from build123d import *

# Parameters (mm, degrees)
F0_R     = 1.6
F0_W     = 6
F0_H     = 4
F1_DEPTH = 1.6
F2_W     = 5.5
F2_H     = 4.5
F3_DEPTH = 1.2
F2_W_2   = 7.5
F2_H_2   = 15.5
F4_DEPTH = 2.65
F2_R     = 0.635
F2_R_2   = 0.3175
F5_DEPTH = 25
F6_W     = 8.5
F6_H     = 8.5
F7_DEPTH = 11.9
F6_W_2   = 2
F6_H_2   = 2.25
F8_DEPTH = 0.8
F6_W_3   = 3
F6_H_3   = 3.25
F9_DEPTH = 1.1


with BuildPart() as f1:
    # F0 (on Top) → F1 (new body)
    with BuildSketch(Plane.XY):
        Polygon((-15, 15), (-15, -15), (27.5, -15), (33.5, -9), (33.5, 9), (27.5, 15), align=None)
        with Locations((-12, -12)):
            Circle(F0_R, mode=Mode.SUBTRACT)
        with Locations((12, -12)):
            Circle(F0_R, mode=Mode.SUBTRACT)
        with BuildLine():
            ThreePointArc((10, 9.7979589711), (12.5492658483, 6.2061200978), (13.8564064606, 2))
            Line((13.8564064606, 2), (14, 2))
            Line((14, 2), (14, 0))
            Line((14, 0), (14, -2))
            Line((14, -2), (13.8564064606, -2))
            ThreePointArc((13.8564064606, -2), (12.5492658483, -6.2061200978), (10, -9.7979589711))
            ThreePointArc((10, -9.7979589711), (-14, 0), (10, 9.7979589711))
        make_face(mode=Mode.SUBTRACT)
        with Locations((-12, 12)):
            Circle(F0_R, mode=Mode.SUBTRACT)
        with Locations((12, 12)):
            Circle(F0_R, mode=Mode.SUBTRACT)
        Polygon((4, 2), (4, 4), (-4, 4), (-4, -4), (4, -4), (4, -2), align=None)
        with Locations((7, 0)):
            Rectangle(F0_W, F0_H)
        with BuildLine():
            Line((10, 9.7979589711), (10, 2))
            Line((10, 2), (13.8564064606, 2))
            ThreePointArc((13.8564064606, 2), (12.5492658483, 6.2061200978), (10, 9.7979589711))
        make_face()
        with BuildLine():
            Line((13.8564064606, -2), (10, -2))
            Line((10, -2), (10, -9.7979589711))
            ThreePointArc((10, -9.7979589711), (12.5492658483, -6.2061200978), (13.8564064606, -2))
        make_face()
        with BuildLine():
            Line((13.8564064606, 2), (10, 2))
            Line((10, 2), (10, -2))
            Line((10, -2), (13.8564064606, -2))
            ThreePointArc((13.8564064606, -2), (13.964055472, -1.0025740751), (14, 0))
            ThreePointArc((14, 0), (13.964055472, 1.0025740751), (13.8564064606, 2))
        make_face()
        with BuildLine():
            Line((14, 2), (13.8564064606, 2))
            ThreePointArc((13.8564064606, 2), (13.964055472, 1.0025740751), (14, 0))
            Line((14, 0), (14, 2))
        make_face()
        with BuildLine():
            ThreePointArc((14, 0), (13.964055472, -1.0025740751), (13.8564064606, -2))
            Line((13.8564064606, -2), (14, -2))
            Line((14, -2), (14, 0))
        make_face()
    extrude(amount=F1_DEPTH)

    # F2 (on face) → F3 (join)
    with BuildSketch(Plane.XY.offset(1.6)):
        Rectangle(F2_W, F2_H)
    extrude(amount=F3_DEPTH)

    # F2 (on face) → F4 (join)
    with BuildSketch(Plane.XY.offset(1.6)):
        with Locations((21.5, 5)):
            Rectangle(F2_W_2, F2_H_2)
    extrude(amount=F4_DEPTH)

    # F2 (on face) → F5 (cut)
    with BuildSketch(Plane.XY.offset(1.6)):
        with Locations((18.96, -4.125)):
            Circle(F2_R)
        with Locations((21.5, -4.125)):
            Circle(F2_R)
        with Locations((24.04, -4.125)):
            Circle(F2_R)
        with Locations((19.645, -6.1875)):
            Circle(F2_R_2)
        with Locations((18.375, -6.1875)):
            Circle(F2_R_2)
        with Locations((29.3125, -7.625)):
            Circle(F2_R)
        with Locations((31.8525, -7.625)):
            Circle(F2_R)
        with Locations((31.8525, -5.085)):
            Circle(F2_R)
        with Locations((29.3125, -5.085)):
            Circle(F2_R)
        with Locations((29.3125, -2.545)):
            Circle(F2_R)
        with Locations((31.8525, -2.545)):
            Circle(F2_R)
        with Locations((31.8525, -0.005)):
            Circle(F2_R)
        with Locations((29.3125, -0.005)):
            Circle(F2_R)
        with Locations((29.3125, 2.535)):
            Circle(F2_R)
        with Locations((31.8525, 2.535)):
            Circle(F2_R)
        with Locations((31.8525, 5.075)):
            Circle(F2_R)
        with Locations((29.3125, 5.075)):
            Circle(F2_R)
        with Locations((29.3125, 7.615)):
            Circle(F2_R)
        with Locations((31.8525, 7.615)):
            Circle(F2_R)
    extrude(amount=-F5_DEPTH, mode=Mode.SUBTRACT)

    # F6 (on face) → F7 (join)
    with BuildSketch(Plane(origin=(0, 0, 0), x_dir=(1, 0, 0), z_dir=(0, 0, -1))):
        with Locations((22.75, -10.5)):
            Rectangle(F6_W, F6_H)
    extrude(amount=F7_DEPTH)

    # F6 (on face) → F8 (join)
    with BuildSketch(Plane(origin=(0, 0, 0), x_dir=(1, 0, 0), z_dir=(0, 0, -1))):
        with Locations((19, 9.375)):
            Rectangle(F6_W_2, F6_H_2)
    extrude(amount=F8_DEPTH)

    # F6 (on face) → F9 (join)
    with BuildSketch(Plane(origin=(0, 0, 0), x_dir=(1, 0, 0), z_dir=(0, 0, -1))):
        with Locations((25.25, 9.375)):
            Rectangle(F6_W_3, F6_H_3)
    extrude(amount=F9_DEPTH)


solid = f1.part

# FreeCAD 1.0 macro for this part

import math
import FreeCAD as App
import Part
import Sketcher

V = App.Vector
Q = App.Units.Quantity


def add_polygon(sketch, points):
    """Adds a closed chain of lines whose ends are joined by coincident constraints."""
    first, n = sketch.GeometryCount, len(points)
    for a, b in zip(points, points[1:] + points[:1]):
        sketch.addGeometry(Part.LineSegment(App.Vector(*a, 0), App.Vector(*b, 0)), False)
    for i in range(n):
        sketch.addConstraint(Sketcher.Constraint("Coincident", first + i, 2, first + (i + 1) % n, 1))

doc = App.newDocument("Part")
body = doc.addObject("PartDesign::Body", "Body")

sketch1 = doc.addObject("Sketcher::SketchObject", "Sketch")
body.addObject(sketch1)
sketch1.AttachmentSupport = (doc.XY_Plane, [""])
sketch1.MapMode = "FlatFace"
add_polygon(sketch1, [(-15, 15), (-15, -15), (27.5, -15), (33.5, -9), (33.5, 9), (27.5, 15)])
sketch1.addGeometry(Part.Circle(V(-12, -12, 0), V(0, 0, 1), 1.6), False)
sketch1.addGeometry(Part.Circle(V(12, -12, 0), V(0, 0, 1), 1.6), False)
sketch1.addGeometry(Part.ArcOfCircle(Part.Circle(V(0, 0, 0), V(0, 0, 1), 14), math.radians(44), math.radians(316)), False)
sketch1.addGeometry(Part.LineSegment(V(10, 9.8, 0), V(10, 2, 0)), False)
sketch1.addGeometry(Part.LineSegment(V(10, 2, 0), V(4, 2, 0)), False)
sketch1.addGeometry(Part.LineSegment(V(4, 2, 0), V(4, 4, 0)), False)
sketch1.addGeometry(Part.LineSegment(V(4, 4, 0), V(-4, 4, 0)), False)
sketch1.addGeometry(Part.LineSegment(V(-4, 4, 0), V(-4, -4, 0)), False)
sketch1.addGeometry(Part.LineSegment(V(-4, -4, 0), V(4, -4, 0)), False)
sketch1.addGeometry(Part.LineSegment(V(4, -4, 0), V(4, -2, 0)), False)
sketch1.addGeometry(Part.LineSegment(V(4, -2, 0), V(10, -2, 0)), False)
sketch1.addGeometry(Part.LineSegment(V(10, -2, 0), V(10, -9.8, 0)), False)
sketch1.addGeometry(Part.Circle(V(-12, 12, 0), V(0, 0, 1), 1.6), False)
sketch1.addGeometry(Part.Circle(V(12, 12, 0), V(0, 0, 1), 1.6), False)
sketch1.addConstraint(Sketcher.Constraint("Coincident", 8, 1, 9, 1))
sketch1.addConstraint(Sketcher.Constraint("Coincident", 9, 2, 10, 1))
sketch1.addConstraint(Sketcher.Constraint("Coincident", 10, 2, 11, 1))
sketch1.addConstraint(Sketcher.Constraint("Coincident", 11, 2, 12, 1))
sketch1.addConstraint(Sketcher.Constraint("Coincident", 12, 2, 13, 1))
sketch1.addConstraint(Sketcher.Constraint("Coincident", 13, 2, 14, 1))
sketch1.addConstraint(Sketcher.Constraint("Coincident", 14, 2, 15, 1))
sketch1.addConstraint(Sketcher.Constraint("Coincident", 15, 2, 16, 1))
sketch1.addConstraint(Sketcher.Constraint("Coincident", 16, 2, 17, 1))
sketch1.addConstraint(Sketcher.Constraint("Coincident", 17, 2, 8, 2))
sketch1.addConstraint(Sketcher.Constraint("Vertical", 0))
sketch1.addConstraint(Sketcher.Constraint("Horizontal", 1))
sketch1.addConstraint(Sketcher.Constraint("Vertical", 3))
sketch1.addConstraint(Sketcher.Constraint("Horizontal", 5))
sketch1.addConstraint(Sketcher.Constraint("Vertical", 9))
sketch1.addConstraint(Sketcher.Constraint("Horizontal", 10))
sketch1.addConstraint(Sketcher.Constraint("Vertical", 11))
sketch1.addConstraint(Sketcher.Constraint("Horizontal", 12))
sketch1.addConstraint(Sketcher.Constraint("Vertical", 13))
sketch1.addConstraint(Sketcher.Constraint("Horizontal", 14))
sketch1.addConstraint(Sketcher.Constraint("Vertical", 15))
sketch1.addConstraint(Sketcher.Constraint("Horizontal", 16))
sketch1.addConstraint(Sketcher.Constraint("Vertical", 17))
sketch1.addConstraint(Sketcher.Constraint("Coincident", 8, 3, -1, 1))
sketch1.addConstraint(Sketcher.Constraint("Equal", 6, 7))
sketch1.addConstraint(Sketcher.Constraint("Equal", 7, 18))
sketch1.addConstraint(Sketcher.Constraint("Equal", 18, 19))
sketch1.addConstraint(Sketcher.Constraint("Symmetric", 7, 3, 18, 3, -1, 1))
sketch1.addConstraint(Sketcher.Constraint("Symmetric", 6, 3, 19, 3, -1, 1))
sketch1.addConstraint(Sketcher.Constraint("Symmetric", 11, 2, 13, 2, -1, 1))
sketch1.addConstraint(Sketcher.Constraint("Symmetric", 6, 3, 7, 3, -2))
sketch1.addConstraint(Sketcher.Constraint("Symmetric", 1, 2, 4, 2, -1))
sketch1.addConstraint(Sketcher.Constraint("Symmetric", 10, 2, 15, 2, -1))
sketch1.addConstraint(Sketcher.Constraint("Perpendicular", 2, 4))
sketch1.addConstraint(Sketcher.Constraint("Vertical", 9, 2, 16, 2))
sketch1.addConstraint(Sketcher.Constraint("Equal", 14, 13))
sketch1.addConstraint(Sketcher.Constraint("Equal", 2, 4))
sketch1.addConstraint(Sketcher.Constraint("Radius", 8, Q("14 mm")))
sketch1.addConstraint(Sketcher.Constraint("Diameter", 6, Q("3.2 mm")))
sketch1.addConstraint(Sketcher.Constraint("DistanceX", 10, 2, 10, 1, Q("6 mm")))
sketch1.addConstraint(Sketcher.Constraint("DistanceX", 12, 2, 12, 1, Q("8 mm")))
sketch1.addConstraint(Sketcher.Constraint("DistanceY", 0, 2, 0, 1, Q("30 mm")))
sketch1.addConstraint(Sketcher.Constraint("DistanceY", 3, 1, 3, 2, Q("18 mm")))
sketch1.addConstraint(Sketcher.Constraint("DistanceY", 11, 1, 11, 2, Q("2 mm")))
sketch1.addConstraint(Sketcher.Constraint("DistanceX", 1, 1, 1, 2, Q("42.5 mm")))
sketch1.addConstraint(Sketcher.Constraint("DistanceX", 6, 3, -1, 1, Q("12 mm")))
sketch1.addConstraint(Sketcher.Constraint("DistanceY", 6, 3, -1, 1, Q("12 mm")))
sketch1.addConstraint(Sketcher.Constraint("DistanceX", 0, 2, -1, 1, Q("15 mm")))
pad1 = doc.addObject("PartDesign::Pad", "Pad")
body.addObject(pad1)
pad1.Profile = sketch1
pad1.Length = 1.6

sketch2 = doc.addObject("Sketcher::SketchObject", "Sketch001")
body.addObject(sketch2)
sketch2.AttachmentSupport = (doc.XY_Plane, [""])
sketch2.MapMode = "FlatFace"
sketch2.AttachmentOffset = App.Placement(V(0, 0, 1.6), App.Rotation())
add_polygon(sketch2, [(-2.8, 2.2), (-2.8, -2.2), (2.8, -2.2), (2.8, 2.2)])
sketch2.addConstraint(Sketcher.Constraint("Vertical", 0))
sketch2.addConstraint(Sketcher.Constraint("Horizontal", 1))
sketch2.addConstraint(Sketcher.Constraint("Vertical", 2))
sketch2.addConstraint(Sketcher.Constraint("Horizontal", 3))
sketch2.addConstraint(Sketcher.Constraint("Symmetric", 0, 2, 2, 2, -1, 1))
sketch2.addConstraint(Sketcher.Constraint("DistanceX", 1, 1, 1, 2, Q("5.5 mm")))
sketch2.addConstraint(Sketcher.Constraint("DistanceY", 0, 2, 0, 1, Q("4.5 mm")))
pad2 = doc.addObject("PartDesign::Pad", "Pad001")
body.addObject(pad2)
pad2.Profile = sketch2
pad2.Length = 1.2

sketch3 = doc.addObject("Sketcher::SketchObject", "Sketch002")
body.addObject(sketch3)
sketch3.AttachmentSupport = (doc.XY_Plane, [""])
sketch3.MapMode = "FlatFace"
sketch3.AttachmentOffset = App.Placement(V(0, 0, 1.6), App.Rotation())
add_polygon(sketch3, [(18, 13), (18, -3), (25, -3), (25, 13)])
sketch3.addConstraint(Sketcher.Constraint("Vertical", 0))
sketch3.addConstraint(Sketcher.Constraint("Horizontal", 1))
sketch3.addConstraint(Sketcher.Constraint("Vertical", 2))
sketch3.addConstraint(Sketcher.Constraint("Horizontal", 3))
sketch3.addConstraint(Sketcher.Constraint("DistanceX", 1, 1, 1, 2, Q("7.5 mm")))
sketch3.addConstraint(Sketcher.Constraint("DistanceY", 0, 2, 0, 1, Q("15.5 mm")))
sketch3.addConstraint(Sketcher.Constraint("DistanceX", -1, 1, 0, 2, Q("17.75 mm")))
sketch3.addConstraint(Sketcher.Constraint("DistanceY", 0, 2, -1, 1, Q("2.75 mm")))
pad3 = doc.addObject("PartDesign::Pad", "Pad002")
body.addObject(pad3)
pad3.Profile = sketch3
pad3.Length = 2.65

sketch4 = doc.addObject("Sketcher::SketchObject", "Sketch003")
body.addObject(sketch4)
sketch4.AttachmentSupport = (doc.XY_Plane, [""])
sketch4.MapMode = "FlatFace"
sketch4.AttachmentOffset = App.Placement(V(0, 0, 1.6), App.Rotation())
sketch4.addGeometry(Part.Circle(V(18.96, -4.12, 0), V(0, 0, 1), 0.64), False)
sketch4.addGeometry(Part.Circle(V(21.5, -4.12, 0), V(0, 0, 1), 0.64), False)
sketch4.addGeometry(Part.Circle(V(24.04, -4.12, 0), V(0, 0, 1), 0.64), False)
sketch4.addGeometry(Part.Circle(V(19.64, -6.19, 0), V(0, 0, 1), 0.32), False)
sketch4.addGeometry(Part.Circle(V(18.38, -6.19, 0), V(0, 0, 1), 0.32), False)
sketch4.addGeometry(Part.Circle(V(29.31, -7.62, 0), V(0, 0, 1), 0.64), False)
sketch4.addGeometry(Part.Circle(V(31.85, -7.62, 0), V(0, 0, 1), 0.64), False)
sketch4.addGeometry(Part.Circle(V(31.85, -5.08, 0), V(0, 0, 1), 0.64), False)
sketch4.addGeometry(Part.Circle(V(29.31, -5.08, 0), V(0, 0, 1), 0.64), False)
sketch4.addGeometry(Part.Circle(V(29.31, -2.54, 0), V(0, 0, 1), 0.64), False)
sketch4.addGeometry(Part.Circle(V(31.85, -2.54, 0), V(0, 0, 1), 0.64), False)
sketch4.addGeometry(Part.Circle(V(31.85, -0.01, 0), V(0, 0, 1), 0.64), False)
sketch4.addGeometry(Part.Circle(V(29.31, -0.01, 0), V(0, 0, 1), 0.64), False)
sketch4.addGeometry(Part.Circle(V(29.31, 2.54, 0), V(0, 0, 1), 0.64), False)
sketch4.addGeometry(Part.Circle(V(31.85, 2.54, 0), V(0, 0, 1), 0.64), False)
sketch4.addGeometry(Part.Circle(V(31.85, 5.08, 0), V(0, 0, 1), 0.64), False)
sketch4.addGeometry(Part.Circle(V(29.31, 5.08, 0), V(0, 0, 1), 0.64), False)
sketch4.addGeometry(Part.Circle(V(29.31, 7.62, 0), V(0, 0, 1), 0.64), False)
sketch4.addGeometry(Part.Circle(V(31.85, 7.62, 0), V(0, 0, 1), 0.64), False)
sketch4.addConstraint(Sketcher.Constraint("Equal", 0, 1))
sketch4.addConstraint(Sketcher.Constraint("Equal", 1, 2))
sketch4.addConstraint(Sketcher.Constraint("Equal", 3, 4))
sketch4.addConstraint(Sketcher.Constraint("Equal", 2, 5))
sketch4.addConstraint(Sketcher.Constraint("Equal", 5, 6))
sketch4.addConstraint(Sketcher.Constraint("Equal", 6, 7))
sketch4.addConstraint(Sketcher.Constraint("Equal", 7, 8))
sketch4.addConstraint(Sketcher.Constraint("Equal", 8, 9))
sketch4.addConstraint(Sketcher.Constraint("Equal", 9, 10))
sketch4.addConstraint(Sketcher.Constraint("Equal", 10, 11))
sketch4.addConstraint(Sketcher.Constraint("Equal", 11, 12))
sketch4.addConstraint(Sketcher.Constraint("Equal", 12, 13))
sketch4.addConstraint(Sketcher.Constraint("Equal", 13, 14))
sketch4.addConstraint(Sketcher.Constraint("Equal", 14, 15))
sketch4.addConstraint(Sketcher.Constraint("Equal", 15, 16))
sketch4.addConstraint(Sketcher.Constraint("Equal", 16, 17))
sketch4.addConstraint(Sketcher.Constraint("Equal", 17, 18))
sketch4.addConstraint(Sketcher.Constraint("Horizontal", 0, 3, 1, 3))
sketch4.addConstraint(Sketcher.Constraint("Horizontal", 1, 3, 2, 3))
sketch4.addConstraint(Sketcher.Constraint("Horizontal", 3, 3, 4, 3))
sketch4.addConstraint(Sketcher.Constraint("Horizontal", 5, 3, 6, 3))
sketch4.addConstraint(Sketcher.Constraint("Horizontal", 7, 3, 8, 3))
sketch4.addConstraint(Sketcher.Constraint("Horizontal", 9, 3, 10, 3))
sketch4.addConstraint(Sketcher.Constraint("Horizontal", 11, 3, 12, 3))
sketch4.addConstraint(Sketcher.Constraint("Horizontal", 13, 3, 14, 3))
sketch4.addConstraint(Sketcher.Constraint("Horizontal", 15, 3, 16, 3))
sketch4.addConstraint(Sketcher.Constraint("Horizontal", 17, 3, 18, 3))
sketch4.addConstraint(Sketcher.Constraint("Vertical", 6, 3, 7, 3))
sketch4.addConstraint(Sketcher.Constraint("Vertical", 5, 3, 8, 3))
sketch4.addConstraint(Sketcher.Constraint("Vertical", 8, 3, 9, 3))
sketch4.addConstraint(Sketcher.Constraint("Vertical", 7, 3, 10, 3))
sketch4.addConstraint(Sketcher.Constraint("Vertical", 10, 3, 11, 3))
sketch4.addConstraint(Sketcher.Constraint("Vertical", 9, 3, 12, 3))
sketch4.addConstraint(Sketcher.Constraint("Vertical", 12, 3, 13, 3))
sketch4.addConstraint(Sketcher.Constraint("Vertical", 11, 3, 14, 3))
sketch4.addConstraint(Sketcher.Constraint("Vertical", 14, 3, 15, 3))
sketch4.addConstraint(Sketcher.Constraint("Vertical", 13, 3, 16, 3))
sketch4.addConstraint(Sketcher.Constraint("Vertical", 16, 3, 17, 3))
sketch4.addConstraint(Sketcher.Constraint("Vertical", 15, 3, 18, 3))
sketch4.addConstraint(Sketcher.Constraint("Diameter", 0, Q("1.27 mm")))
sketch4.addConstraint(Sketcher.Constraint("Diameter", 3, Q("0.635 mm")))
sketch4.addConstraint(Sketcher.Constraint("DistanceX", -1, 1, 1, 3, Q("21.5 mm")))
sketch4.addConstraint(Sketcher.Constraint("DistanceY", 5, 3, 2, 3, Q("3.5 mm")))
sketch4.addConstraint(Sketcher.Constraint("DistanceX", -1, 1, 0, 3, Q("18.96 mm")))
sketch4.addConstraint(Sketcher.Constraint("DistanceX", -1, 1, 2, 3, Q("24.04 mm")))
sketch4.addConstraint(Sketcher.Constraint("DistanceX", 4, 3, 3, 3, Q("1.27 mm")))
sketch4.addConstraint(Sketcher.Constraint("DistanceX", 5, 3, 6, 3, Q("2.54 mm")))
sketch4.addConstraint(Sketcher.Constraint("DistanceY", 6, 3, 7, 3, Q("2.54 mm")))
sketch4.addConstraint(Sketcher.Constraint("DistanceY", 8, 3, 9, 3, Q("2.54 mm")))
sketch4.addConstraint(Sketcher.Constraint("DistanceY", 10, 3, 11, 3, Q("2.54 mm")))
sketch4.addConstraint(Sketcher.Constraint("DistanceY", 12, 3, 13, 3, Q("2.54 mm")))
sketch4.addConstraint(Sketcher.Constraint("DistanceY", 14, 3, 15, 3, Q("2.54 mm")))
sketch4.addConstraint(Sketcher.Constraint("DistanceY", 16, 3, 17, 3, Q("2.54 mm")))
sketch4.addConstraint(Sketcher.Constraint("DistanceY", 0, 3, -1, 1, Q("4.125 mm")))
sketch4.addConstraint(Sketcher.Constraint("DistanceX", -1, 1, 3, 3, Q("19.645 mm")))
sketch4.addConstraint(Sketcher.Constraint("DistanceY", 3, 3, -1, 1, Q("6.1875 mm")))
sketch4.addConstraint(Sketcher.Constraint("DistanceX", -1, 1, 5, 3, Q("29.3125 mm")))
pocket1 = doc.addObject("PartDesign::Pocket", "Pocket")
body.addObject(pocket1)
pocket1.Profile = sketch4
pocket1.Length = 25

sketch5 = doc.addObject("Sketcher::SketchObject", "Sketch004")
body.addObject(sketch5)
sketch5.AttachmentSupport = (doc.XY_Plane, [""])
sketch5.MapMode = "FlatFace"
add_polygon(sketch5, [(18, 6), (18, 15), (27, 15), (27, 6)])
sketch5.addConstraint(Sketcher.Constraint("Vertical", 0))
sketch5.addConstraint(Sketcher.Constraint("Horizontal", 1))
sketch5.addConstraint(Sketcher.Constraint("Vertical", 2))
sketch5.addConstraint(Sketcher.Constraint("Horizontal", 3))
sketch5.addConstraint(Sketcher.Constraint("Equal", 3, 0))
sketch5.addConstraint(Sketcher.Constraint("DistanceX", 1, 1, 1, 2, Q("8.5 mm")))
sketch5.addConstraint(Sketcher.Constraint("DistanceX", -1, 1, 1, 2, Q("27 mm")))
sketch5.addConstraint(Sketcher.Constraint("DistanceY", -1, 1, 0, 2, Q("14.75 mm")))
pad4 = doc.addObject("PartDesign::Pad", "Pad003")
body.addObject(pad4)
pad4.Profile = sketch5
pad4.Length = 11.9
pad4.Reversed = True

sketch6 = doc.addObject("Sketcher::SketchObject", "Sketch005")
body.addObject(sketch6)
sketch6.AttachmentSupport = (doc.XY_Plane, [""])
sketch6.MapMode = "FlatFace"
add_polygon(sketch6, [(18, -10.5), (18, -8.2), (20, -8.2), (20, -10.5)])
sketch6.addConstraint(Sketcher.Constraint("Vertical", 0))
sketch6.addConstraint(Sketcher.Constraint("Horizontal", 1))
sketch6.addConstraint(Sketcher.Constraint("Vertical", 2))
sketch6.addConstraint(Sketcher.Constraint("Horizontal", 3))
sketch6.addConstraint(Sketcher.Constraint("DistanceX", 1, 1, 1, 2, Q("2 mm")))
sketch6.addConstraint(Sketcher.Constraint("DistanceX", -1, 1, 0, 2, Q("18 mm")))
sketch6.addConstraint(Sketcher.Constraint("DistanceY", 0, 1, 0, 2, Q("2.25 mm")))
sketch6.addConstraint(Sketcher.Constraint("DistanceY", 2, 2, -1, 1, Q("10.5 mm")))
pad5 = doc.addObject("PartDesign::Pad", "Pad004")
body.addObject(pad5)
pad5.Profile = sketch6
pad5.Length = 0.8
pad5.Reversed = True

sketch7 = doc.addObject("Sketcher::SketchObject", "Sketch006")
body.addObject(sketch7)
sketch7.AttachmentSupport = (doc.XY_Plane, [""])
sketch7.MapMode = "FlatFace"
add_polygon(sketch7, [(23.8, -11), (23.8, -7.8), (26.8, -7.8), (26.8, -11)])
sketch7.addConstraint(Sketcher.Constraint("Vertical", 0))
sketch7.addConstraint(Sketcher.Constraint("Horizontal", 1))
sketch7.addConstraint(Sketcher.Constraint("Vertical", 2))
sketch7.addConstraint(Sketcher.Constraint("Horizontal", 3))
sketch7.addConstraint(Sketcher.Constraint("DistanceX", 1, 1, 1, 2, Q("3 mm")))
sketch7.addConstraint(Sketcher.Constraint("DistanceY", 2, 2, -1, 1, Q("11 mm")))
sketch7.addConstraint(Sketcher.Constraint("DistanceY", 0, 1, 0, 2, Q("3.25 mm")))
sketch7.addConstraint(Sketcher.Constraint("DistanceX", -1, 1, 0, 2, Q("23.75 mm")))
pad6 = doc.addObject("PartDesign::Pad", "Pad005")
body.addObject(pad6)
pad6.Profile = sketch7
pad6.Length = 1.1
pad6.Reversed = True

doc.recompute()
